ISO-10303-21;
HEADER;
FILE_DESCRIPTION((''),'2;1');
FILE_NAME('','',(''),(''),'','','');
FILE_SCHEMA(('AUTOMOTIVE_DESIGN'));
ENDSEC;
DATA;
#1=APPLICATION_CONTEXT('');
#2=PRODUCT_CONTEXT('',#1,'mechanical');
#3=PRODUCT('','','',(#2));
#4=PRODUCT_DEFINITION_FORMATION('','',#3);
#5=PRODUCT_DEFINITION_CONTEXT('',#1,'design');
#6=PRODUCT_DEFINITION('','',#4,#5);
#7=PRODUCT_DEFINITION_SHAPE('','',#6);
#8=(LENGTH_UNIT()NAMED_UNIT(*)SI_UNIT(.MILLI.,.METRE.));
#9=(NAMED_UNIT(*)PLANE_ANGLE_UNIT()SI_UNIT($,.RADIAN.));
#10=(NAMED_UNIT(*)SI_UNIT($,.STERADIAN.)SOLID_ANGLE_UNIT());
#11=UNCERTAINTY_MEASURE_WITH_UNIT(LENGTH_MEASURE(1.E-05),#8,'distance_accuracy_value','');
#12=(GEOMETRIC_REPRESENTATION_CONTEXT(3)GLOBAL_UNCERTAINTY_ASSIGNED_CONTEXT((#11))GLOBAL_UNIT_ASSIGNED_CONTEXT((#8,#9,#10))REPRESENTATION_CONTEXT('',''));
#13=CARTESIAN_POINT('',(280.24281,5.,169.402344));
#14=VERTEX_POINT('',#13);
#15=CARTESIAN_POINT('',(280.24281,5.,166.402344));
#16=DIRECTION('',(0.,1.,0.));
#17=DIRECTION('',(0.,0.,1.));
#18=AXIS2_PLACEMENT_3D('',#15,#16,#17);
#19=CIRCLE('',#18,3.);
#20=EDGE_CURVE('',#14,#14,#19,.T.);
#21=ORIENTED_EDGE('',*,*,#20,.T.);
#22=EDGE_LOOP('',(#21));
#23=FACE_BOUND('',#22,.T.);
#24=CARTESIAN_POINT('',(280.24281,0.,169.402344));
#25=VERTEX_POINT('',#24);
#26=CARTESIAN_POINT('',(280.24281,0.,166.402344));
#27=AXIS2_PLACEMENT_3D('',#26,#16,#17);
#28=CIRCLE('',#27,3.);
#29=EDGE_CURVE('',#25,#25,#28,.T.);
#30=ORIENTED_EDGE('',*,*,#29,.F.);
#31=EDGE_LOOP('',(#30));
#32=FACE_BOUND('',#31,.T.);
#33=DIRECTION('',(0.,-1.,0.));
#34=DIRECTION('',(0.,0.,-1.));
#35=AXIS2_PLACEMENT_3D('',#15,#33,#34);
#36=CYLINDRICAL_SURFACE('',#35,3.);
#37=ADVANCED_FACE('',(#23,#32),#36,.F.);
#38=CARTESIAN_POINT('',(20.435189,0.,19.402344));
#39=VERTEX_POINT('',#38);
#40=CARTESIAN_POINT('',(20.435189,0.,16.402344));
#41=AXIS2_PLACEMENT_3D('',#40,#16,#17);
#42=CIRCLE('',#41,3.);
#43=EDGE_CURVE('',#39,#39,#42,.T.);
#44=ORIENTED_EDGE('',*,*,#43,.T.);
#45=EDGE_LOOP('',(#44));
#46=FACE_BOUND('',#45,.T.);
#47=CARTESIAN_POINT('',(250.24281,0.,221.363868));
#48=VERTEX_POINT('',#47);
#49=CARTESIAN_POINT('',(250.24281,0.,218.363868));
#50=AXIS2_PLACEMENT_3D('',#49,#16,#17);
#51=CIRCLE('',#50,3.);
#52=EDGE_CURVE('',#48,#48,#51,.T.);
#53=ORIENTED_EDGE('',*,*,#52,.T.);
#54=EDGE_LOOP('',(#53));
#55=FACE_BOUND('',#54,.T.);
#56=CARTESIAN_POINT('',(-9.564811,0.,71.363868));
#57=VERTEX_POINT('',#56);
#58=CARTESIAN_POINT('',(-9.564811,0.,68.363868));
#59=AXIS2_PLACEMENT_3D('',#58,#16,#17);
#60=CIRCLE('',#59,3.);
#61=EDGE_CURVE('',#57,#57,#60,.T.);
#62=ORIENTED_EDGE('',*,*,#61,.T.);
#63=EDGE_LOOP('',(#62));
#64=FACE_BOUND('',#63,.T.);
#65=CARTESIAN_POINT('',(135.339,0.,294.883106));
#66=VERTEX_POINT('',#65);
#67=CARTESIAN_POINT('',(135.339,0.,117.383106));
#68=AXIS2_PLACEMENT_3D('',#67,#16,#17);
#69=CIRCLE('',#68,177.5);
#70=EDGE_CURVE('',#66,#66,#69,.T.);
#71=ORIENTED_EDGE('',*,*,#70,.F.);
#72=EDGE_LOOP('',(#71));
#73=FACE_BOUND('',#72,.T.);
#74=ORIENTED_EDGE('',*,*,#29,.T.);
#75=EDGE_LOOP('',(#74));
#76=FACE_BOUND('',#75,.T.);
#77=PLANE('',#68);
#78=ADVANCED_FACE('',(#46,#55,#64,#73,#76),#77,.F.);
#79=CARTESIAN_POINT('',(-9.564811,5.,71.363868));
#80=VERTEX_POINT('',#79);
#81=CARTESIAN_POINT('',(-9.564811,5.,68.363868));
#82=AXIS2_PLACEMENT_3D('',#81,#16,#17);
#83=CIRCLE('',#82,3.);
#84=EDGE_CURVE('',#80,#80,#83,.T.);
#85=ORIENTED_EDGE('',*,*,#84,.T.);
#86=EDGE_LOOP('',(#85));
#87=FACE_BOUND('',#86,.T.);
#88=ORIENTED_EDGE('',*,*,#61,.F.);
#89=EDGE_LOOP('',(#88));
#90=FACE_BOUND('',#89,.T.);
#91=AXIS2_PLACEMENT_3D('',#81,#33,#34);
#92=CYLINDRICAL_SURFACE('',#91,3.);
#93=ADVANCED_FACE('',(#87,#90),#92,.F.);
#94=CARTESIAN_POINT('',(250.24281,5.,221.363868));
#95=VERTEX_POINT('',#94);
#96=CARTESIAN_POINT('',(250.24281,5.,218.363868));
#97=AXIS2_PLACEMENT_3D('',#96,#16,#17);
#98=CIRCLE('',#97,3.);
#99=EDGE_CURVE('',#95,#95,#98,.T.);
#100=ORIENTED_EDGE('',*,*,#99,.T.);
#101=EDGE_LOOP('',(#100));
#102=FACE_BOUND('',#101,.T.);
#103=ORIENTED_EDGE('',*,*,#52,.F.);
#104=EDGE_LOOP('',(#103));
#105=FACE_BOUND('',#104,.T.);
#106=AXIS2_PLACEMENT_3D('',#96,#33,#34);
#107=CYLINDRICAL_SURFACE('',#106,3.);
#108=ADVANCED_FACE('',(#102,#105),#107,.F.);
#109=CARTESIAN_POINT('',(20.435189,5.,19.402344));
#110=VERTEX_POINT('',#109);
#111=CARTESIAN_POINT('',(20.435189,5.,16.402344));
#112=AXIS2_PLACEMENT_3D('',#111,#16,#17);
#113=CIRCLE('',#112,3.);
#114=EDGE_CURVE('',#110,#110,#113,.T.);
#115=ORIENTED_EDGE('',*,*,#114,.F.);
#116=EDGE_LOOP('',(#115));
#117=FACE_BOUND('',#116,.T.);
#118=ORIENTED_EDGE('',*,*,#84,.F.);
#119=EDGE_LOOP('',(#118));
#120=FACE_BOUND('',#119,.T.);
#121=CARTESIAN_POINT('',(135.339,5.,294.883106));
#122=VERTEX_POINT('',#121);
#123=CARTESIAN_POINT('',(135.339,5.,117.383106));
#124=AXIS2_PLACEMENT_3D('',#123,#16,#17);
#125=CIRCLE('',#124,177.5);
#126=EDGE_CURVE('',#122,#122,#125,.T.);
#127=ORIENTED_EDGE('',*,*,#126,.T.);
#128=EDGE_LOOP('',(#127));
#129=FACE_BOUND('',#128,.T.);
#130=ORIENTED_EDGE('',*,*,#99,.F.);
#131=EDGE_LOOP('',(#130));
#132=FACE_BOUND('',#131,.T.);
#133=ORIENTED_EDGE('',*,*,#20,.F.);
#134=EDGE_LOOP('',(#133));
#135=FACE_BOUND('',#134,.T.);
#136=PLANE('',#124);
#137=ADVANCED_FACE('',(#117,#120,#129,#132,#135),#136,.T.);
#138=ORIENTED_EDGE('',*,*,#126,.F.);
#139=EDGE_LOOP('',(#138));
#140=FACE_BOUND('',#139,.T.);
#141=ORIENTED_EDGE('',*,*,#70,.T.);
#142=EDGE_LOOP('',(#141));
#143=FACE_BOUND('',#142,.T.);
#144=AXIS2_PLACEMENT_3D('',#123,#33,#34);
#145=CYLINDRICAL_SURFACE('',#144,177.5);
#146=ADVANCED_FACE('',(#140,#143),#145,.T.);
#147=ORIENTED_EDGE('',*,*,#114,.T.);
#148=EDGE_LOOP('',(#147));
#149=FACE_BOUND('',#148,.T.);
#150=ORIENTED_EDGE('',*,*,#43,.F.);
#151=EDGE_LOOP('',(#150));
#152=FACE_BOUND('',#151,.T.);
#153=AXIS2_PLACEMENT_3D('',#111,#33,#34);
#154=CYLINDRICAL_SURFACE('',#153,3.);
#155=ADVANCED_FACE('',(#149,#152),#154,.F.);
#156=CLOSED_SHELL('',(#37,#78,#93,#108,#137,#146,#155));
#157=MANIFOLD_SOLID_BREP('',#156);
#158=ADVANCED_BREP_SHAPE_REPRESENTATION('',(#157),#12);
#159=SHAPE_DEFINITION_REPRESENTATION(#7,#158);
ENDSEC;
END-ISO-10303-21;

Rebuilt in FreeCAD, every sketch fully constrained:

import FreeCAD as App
import Part
import Sketcher
Q = App.Units.Quantity

doc = App.newDocument("Part")
body = doc.addObject("PartDesign::Body", "Body")

sketch1 = doc.addObject("Sketcher::SketchObject", "Sketch")
body.addObject(sketch1)
sketch1.AttachmentSupport = (doc.XZ_Plane, [""])
sketch1.MapMode = "FlatFace"
sketch1.addGeometry(Part.Circle(App.Vector(135.3, 117.4, 0), App.Vector(0, 0, 1), 177.5), False)
sketch1.addGeometry(Part.Circle(App.Vector(20.4, 16.4, 0), App.Vector(0, 0, 1), 3), False)
sketch1.addGeometry(Part.Circle(App.Vector(-9.6, 68.4, 0), App.Vector(0, 0, 1), 3), False)
sketch1.addGeometry(Part.Circle(App.Vector(280.2, 166.4, 0), App.Vector(0, 0, 1), 3), False)
sketch1.addGeometry(Part.Circle(App.Vector(250.2, 218.4, 0), App.Vector(0, 0, 1), 3), False)
sketch1.addConstraint(Sketcher.Constraint("Equal", 1, 2))
sketch1.addConstraint(Sketcher.Constraint("Equal", 2, 3))
sketch1.addConstraint(Sketcher.Constraint("Equal", 3, 4))
sketch1.addConstraint(Sketcher.Constraint("Diameter", 0, Q("355 mm")))
sketch1.addConstraint(Sketcher.Constraint("Diameter", 1, Q("6 mm")))
sketch1.addConstraint(Sketcher.Constraint("DistanceX", 2, 3, 1, 3, Q("30 mm")))
sketch1.addConstraint(Sketcher.Constraint("DistanceY", 1, 3, 3, 3, Q("150 mm")))
sketch1.addConstraint(Sketcher.Constraint("DistanceX", 4, 3, 3, 3, Q("30 mm")))
sketch1.addConstraint(Sketcher.Constraint("DistanceY", 2, 3, 4, 3, Q("150 mm")))
sketch1.addConstraint(Sketcher.Constraint("DistanceX", -1, 1, 0, 3, Q("135.339 mm")))
sketch1.addConstraint(Sketcher.Constraint("DistanceX", -1, 1, 1, 3, Q("20.435189 mm")))
sketch1.addConstraint(Sketcher.Constraint("DistanceY", -1, 1, 2, 3, Q("68.363868 mm")))
sketch1.addConstraint(Sketcher.Constraint("DistanceX", -1, 1, 3, 3, Q("280.24281 mm")))
sketch1.addConstraint(Sketcher.Constraint("DistanceY", -1, 1, 0, 3, Q("117.383106 mm")))
sketch1.addConstraint(Sketcher.Constraint("DistanceY", -1, 1, 1, 3, Q("16.402344 mm")))
pad1 = doc.addObject("PartDesign::Pad", "Pad")
body.addObject(pad1)
pad1.Profile = sketch1
pad1.Length = 5
pad1.Reversed = True

doc.recompute()
